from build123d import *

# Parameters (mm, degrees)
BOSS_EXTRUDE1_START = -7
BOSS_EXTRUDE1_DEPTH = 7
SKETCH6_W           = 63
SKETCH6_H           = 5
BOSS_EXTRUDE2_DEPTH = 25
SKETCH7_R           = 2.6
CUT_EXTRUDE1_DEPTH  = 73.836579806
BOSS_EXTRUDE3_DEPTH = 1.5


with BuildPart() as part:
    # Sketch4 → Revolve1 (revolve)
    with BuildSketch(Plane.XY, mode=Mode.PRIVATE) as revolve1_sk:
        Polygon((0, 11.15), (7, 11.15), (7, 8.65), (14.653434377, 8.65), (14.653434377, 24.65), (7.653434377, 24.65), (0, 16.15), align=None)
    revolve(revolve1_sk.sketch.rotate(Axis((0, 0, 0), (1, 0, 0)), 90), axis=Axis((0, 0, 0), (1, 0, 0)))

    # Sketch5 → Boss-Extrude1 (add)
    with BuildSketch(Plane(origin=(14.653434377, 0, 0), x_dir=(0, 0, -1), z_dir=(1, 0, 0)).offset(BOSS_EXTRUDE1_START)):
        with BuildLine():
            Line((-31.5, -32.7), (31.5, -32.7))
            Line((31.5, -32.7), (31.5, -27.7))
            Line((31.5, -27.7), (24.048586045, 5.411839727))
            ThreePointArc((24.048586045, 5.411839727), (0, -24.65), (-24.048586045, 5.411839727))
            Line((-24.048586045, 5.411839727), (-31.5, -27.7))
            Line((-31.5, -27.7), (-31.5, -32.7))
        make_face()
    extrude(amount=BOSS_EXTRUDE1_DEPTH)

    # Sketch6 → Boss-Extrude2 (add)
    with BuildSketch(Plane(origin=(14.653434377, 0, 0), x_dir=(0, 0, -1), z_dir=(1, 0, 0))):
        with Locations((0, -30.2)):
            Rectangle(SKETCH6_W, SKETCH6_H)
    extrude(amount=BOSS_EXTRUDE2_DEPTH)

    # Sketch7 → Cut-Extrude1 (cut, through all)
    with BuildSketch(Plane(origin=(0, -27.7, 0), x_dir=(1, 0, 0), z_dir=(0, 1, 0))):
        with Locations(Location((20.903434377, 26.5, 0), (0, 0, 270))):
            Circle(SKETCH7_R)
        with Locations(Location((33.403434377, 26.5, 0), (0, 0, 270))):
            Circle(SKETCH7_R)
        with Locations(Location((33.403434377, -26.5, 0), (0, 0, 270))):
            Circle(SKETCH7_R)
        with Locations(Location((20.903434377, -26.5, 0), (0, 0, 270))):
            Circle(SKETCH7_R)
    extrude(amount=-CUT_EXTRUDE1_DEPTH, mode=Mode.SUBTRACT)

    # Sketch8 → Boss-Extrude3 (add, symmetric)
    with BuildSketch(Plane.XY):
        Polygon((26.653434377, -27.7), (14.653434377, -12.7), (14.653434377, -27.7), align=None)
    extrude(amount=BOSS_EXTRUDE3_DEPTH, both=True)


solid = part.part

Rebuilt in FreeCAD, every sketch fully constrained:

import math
import FreeCAD as App
import Part
import Sketcher

V = App.Vector
Q = App.Units.Quantity


def add_polygon(sketch, points):
    """Adds a closed chain of lines whose ends are joined by coincident constraints."""
    first, n = sketch.GeometryCount, len(points)
    for a, b in zip(points, points[1:] + points[:1]):
        sketch.addGeometry(Part.LineSegment(App.Vector(*a, 0), App.Vector(*b, 0)), False)
    for i in range(n):
        sketch.addConstraint(Sketcher.Constraint("Coincident", first + i, 2, first + (i + 1) % n, 1))

doc = App.newDocument("Part")
body = doc.addObject("PartDesign::Body", "Body")

sketch1 = body.newObject("Sketcher::SketchObject", "Sketch")
sketch1.AttachmentSupport = (doc.getObject("XY_Plane"), [""])
sketch1.MapMode = "FlatFace"
add_polygon(sketch1, [(0, 11.2), (7, 11.2), (7, 8.7), (14.7, 8.7), (14.7, 24.6), (7.7, 24.6), (0, 16.1)])
sketch1.addConstraint([
    Sketcher.Constraint("Horizontal", 0),
    Sketcher.Constraint("Vertical", 1),
    Sketcher.Constraint("Horizontal", 2),
    Sketcher.Constraint("Vertical", 3),
    Sketcher.Constraint("Horizontal", 4),
    Sketcher.Constraint("Vertical", 6),
    Sketcher.Constraint("PointOnObject", 5, 2, -2),
    Sketcher.Constraint("Equal", 0, 4),
    Sketcher.Constraint("DistanceX", 0, 1, 0, 2, 7.0),
    Sketcher.Constraint("DistanceY", 3, 1, 3, 2, 16.0),
    Sketcher.Constraint("DistanceY", 6, 2, 6, 1, 5.0),
    Sketcher.Constraint("Angle", 5, Q("-132 deg")),
    Sketcher.Constraint("DistanceY", 1, 2, 1, 1, 2.5),
    Sketcher.Constraint("DistanceY", -1, 1, 0, 2, 11.15),
])
revolution = body.newObject("PartDesign::Revolution", "Revolution")
revolution.Profile = sketch1
revolution.ReferenceAxis = (sketch1, ["H_Axis"])
revolution.Angle = 360

sketch2 = body.newObject("Sketcher::SketchObject", "Sketch001")
sketch2.AttachmentSupport = (doc.getObject("YZ_Plane"), [""])
sketch2.MapMode = "FlatFace"
sketch2.AttachmentOffset = App.Placement(V(0, 0, 7.653434), App.Rotation())
sketch2.addGeometry([
    Part.LineSegment(V(-33, 32, 0), V(-33, -32, 0)),
    Part.LineSegment(V(-33, -32, 0), V(-28, -32, 0)),
    Part.LineSegment(V(-28, -32, 0), V(5, -24, 0)),
    Part.ArcOfCircle(Part.Circle(V(0, 0, 0), V(0, 0, 1), 25), math.radians(77), math.radians(283)),
    Part.LineSegment(V(5, 24, 0), V(-28, 32, 0)),
    Part.LineSegment(V(-28, 32, 0), V(-33, 32, 0)),
], False)
sketch2.addConstraint([
    Sketcher.Constraint("Coincident", 0, 2, 1, 1),
    Sketcher.Constraint("Coincident", 1, 2, 2, 1),
    Sketcher.Constraint("Tangent", 2, 2, 3, 2),
    Sketcher.Constraint("Tangent", 3, 1, 4, 1),
    Sketcher.Constraint("Coincident", 4, 2, 5, 1),
    Sketcher.Constraint("Coincident", 5, 2, 0, 1),
    Sketcher.Constraint("Vertical", 0),
    Sketcher.Constraint("Horizontal", 1),
    Sketcher.Constraint("Horizontal", 5),
    Sketcher.Constraint("Coincident", 3, 3, -1, 1),
    Sketcher.Constraint("Symmetric", 1, 2, 4, 2, -1),
    Sketcher.Constraint("DistanceX", 1, 1, 1, 2, 5.0),
    Sketcher.Constraint("DistanceY", 0, 2, 0, 1, 63.0),
    Sketcher.Constraint("Radius", 3, 24.65),
    Sketcher.Constraint("DistanceX", 0, 2, -1, 1, 32.7),
])
pad1 = body.newObject("PartDesign::Pad", "Pad")
pad1.Profile = sketch2
pad1.Length = 7

sketch3 = body.newObject("Sketcher::SketchObject", "Sketch002")
sketch3.AttachmentSupport = (doc.getObject("YZ_Plane"), [""])
sketch3.MapMode = "FlatFace"
sketch3.AttachmentOffset = App.Placement(V(0, 0, 14.653434), App.Rotation())
add_polygon(sketch3, [(-28, 32), (-33, 32), (-33, -32), (-28, -32)])
sketch3.addConstraint([
    Sketcher.Constraint("Horizontal", 0),
    Sketcher.Constraint("Vertical", 1),
    Sketcher.Constraint("Horizontal", 2),
    Sketcher.Constraint("Vertical", 3),
    Sketcher.Constraint("DistanceX", 0, 2, 0, 1, 5.0),
    Sketcher.Constraint("DistanceY", 1, 2, 1, 1, 63.0),
    Sketcher.Constraint("DistanceX", 0, 2, -1, 1, 32.7),
    Sketcher.Constraint("DistanceY", -1, 1, 0, 2, 31.5),
])
pad2 = body.newObject("PartDesign::Pad", "Pad001")
pad2.Profile = sketch3
pad2.Length = 25

sketch4 = body.newObject("Sketcher::SketchObject", "Sketch003")
sketch4.AttachmentSupport = (doc.getObject("XZ_Plane"), [""])
sketch4.MapMode = "FlatFace"
sketch4.AttachmentOffset = App.Placement(V(0, 0, 27.7), App.Rotation())
sketch4.addGeometry([
    Part.Circle(V(20.9, -26.5, 0), V(0, 0, 1), 2.6),
    Part.Circle(V(33.4, -26.5, 0), V(0, 0, 1), 2.6),
    Part.Circle(V(33.4, 26.5, 0), V(0, 0, 1), 2.6),
    Part.Circle(V(20.9, 26.5, 0), V(0, 0, 1), 2.6),
], False)
sketch4.addConstraint([
    Sketcher.Constraint("Equal", 0, 1),
    Sketcher.Constraint("Equal", 1, 2),
    Sketcher.Constraint("Equal", 2, 3),
    Sketcher.Constraint("Symmetric", 1, 3, 2, 3, -1),
    Sketcher.Constraint("Symmetric", 0, 3, 3, 3, -1),
    Sketcher.Constraint("Horizontal", 0, 3, 1, 3),
    Sketcher.Constraint("Diameter", 0, 5.2),
    Sketcher.Constraint("DistanceY", 1, 3, 2, 3, 53.0),
    Sketcher.Constraint("DistanceX", 0, 3, 1, 3, 12.5),
    Sketcher.Constraint("DistanceX", -1, 1, 0, 3, 20.903434),
])
pocket1 = body.newObject("PartDesign::Pocket", "Pocket")
pocket1.Profile = sketch4
pocket1.Type = "ThroughAll"
pocket1.Reversed = True

sketch5 = body.newObject("Sketcher::SketchObject", "Sketch004")
sketch5.AttachmentSupport = (doc.getObject("XY_Plane"), [""])
sketch5.MapMode = "FlatFace"
add_polygon(sketch5, [(27, -28), (15, -13), (15, -28)])
sketch5.addConstraint([
    Sketcher.Constraint("Vertical", 1),
    Sketcher.Constraint("Horizontal", 2),
    Sketcher.Constraint("DistanceX", 2, 1, 2, 2, 12.0),
    Sketcher.Constraint("DistanceY", 1, 2, 1, 1, 15.0),
    Sketcher.Constraint("DistanceY", 0, 2, -1, 1, 12.7),
    Sketcher.Constraint("DistanceX", -1, 1, 0, 2, 14.653434),
])
pad3 = body.newObject("PartDesign::Pad", "Pad002")
pad3.Profile = sketch5
pad3.Length = 3
pad3.Midplane = True

doc.recompute()
